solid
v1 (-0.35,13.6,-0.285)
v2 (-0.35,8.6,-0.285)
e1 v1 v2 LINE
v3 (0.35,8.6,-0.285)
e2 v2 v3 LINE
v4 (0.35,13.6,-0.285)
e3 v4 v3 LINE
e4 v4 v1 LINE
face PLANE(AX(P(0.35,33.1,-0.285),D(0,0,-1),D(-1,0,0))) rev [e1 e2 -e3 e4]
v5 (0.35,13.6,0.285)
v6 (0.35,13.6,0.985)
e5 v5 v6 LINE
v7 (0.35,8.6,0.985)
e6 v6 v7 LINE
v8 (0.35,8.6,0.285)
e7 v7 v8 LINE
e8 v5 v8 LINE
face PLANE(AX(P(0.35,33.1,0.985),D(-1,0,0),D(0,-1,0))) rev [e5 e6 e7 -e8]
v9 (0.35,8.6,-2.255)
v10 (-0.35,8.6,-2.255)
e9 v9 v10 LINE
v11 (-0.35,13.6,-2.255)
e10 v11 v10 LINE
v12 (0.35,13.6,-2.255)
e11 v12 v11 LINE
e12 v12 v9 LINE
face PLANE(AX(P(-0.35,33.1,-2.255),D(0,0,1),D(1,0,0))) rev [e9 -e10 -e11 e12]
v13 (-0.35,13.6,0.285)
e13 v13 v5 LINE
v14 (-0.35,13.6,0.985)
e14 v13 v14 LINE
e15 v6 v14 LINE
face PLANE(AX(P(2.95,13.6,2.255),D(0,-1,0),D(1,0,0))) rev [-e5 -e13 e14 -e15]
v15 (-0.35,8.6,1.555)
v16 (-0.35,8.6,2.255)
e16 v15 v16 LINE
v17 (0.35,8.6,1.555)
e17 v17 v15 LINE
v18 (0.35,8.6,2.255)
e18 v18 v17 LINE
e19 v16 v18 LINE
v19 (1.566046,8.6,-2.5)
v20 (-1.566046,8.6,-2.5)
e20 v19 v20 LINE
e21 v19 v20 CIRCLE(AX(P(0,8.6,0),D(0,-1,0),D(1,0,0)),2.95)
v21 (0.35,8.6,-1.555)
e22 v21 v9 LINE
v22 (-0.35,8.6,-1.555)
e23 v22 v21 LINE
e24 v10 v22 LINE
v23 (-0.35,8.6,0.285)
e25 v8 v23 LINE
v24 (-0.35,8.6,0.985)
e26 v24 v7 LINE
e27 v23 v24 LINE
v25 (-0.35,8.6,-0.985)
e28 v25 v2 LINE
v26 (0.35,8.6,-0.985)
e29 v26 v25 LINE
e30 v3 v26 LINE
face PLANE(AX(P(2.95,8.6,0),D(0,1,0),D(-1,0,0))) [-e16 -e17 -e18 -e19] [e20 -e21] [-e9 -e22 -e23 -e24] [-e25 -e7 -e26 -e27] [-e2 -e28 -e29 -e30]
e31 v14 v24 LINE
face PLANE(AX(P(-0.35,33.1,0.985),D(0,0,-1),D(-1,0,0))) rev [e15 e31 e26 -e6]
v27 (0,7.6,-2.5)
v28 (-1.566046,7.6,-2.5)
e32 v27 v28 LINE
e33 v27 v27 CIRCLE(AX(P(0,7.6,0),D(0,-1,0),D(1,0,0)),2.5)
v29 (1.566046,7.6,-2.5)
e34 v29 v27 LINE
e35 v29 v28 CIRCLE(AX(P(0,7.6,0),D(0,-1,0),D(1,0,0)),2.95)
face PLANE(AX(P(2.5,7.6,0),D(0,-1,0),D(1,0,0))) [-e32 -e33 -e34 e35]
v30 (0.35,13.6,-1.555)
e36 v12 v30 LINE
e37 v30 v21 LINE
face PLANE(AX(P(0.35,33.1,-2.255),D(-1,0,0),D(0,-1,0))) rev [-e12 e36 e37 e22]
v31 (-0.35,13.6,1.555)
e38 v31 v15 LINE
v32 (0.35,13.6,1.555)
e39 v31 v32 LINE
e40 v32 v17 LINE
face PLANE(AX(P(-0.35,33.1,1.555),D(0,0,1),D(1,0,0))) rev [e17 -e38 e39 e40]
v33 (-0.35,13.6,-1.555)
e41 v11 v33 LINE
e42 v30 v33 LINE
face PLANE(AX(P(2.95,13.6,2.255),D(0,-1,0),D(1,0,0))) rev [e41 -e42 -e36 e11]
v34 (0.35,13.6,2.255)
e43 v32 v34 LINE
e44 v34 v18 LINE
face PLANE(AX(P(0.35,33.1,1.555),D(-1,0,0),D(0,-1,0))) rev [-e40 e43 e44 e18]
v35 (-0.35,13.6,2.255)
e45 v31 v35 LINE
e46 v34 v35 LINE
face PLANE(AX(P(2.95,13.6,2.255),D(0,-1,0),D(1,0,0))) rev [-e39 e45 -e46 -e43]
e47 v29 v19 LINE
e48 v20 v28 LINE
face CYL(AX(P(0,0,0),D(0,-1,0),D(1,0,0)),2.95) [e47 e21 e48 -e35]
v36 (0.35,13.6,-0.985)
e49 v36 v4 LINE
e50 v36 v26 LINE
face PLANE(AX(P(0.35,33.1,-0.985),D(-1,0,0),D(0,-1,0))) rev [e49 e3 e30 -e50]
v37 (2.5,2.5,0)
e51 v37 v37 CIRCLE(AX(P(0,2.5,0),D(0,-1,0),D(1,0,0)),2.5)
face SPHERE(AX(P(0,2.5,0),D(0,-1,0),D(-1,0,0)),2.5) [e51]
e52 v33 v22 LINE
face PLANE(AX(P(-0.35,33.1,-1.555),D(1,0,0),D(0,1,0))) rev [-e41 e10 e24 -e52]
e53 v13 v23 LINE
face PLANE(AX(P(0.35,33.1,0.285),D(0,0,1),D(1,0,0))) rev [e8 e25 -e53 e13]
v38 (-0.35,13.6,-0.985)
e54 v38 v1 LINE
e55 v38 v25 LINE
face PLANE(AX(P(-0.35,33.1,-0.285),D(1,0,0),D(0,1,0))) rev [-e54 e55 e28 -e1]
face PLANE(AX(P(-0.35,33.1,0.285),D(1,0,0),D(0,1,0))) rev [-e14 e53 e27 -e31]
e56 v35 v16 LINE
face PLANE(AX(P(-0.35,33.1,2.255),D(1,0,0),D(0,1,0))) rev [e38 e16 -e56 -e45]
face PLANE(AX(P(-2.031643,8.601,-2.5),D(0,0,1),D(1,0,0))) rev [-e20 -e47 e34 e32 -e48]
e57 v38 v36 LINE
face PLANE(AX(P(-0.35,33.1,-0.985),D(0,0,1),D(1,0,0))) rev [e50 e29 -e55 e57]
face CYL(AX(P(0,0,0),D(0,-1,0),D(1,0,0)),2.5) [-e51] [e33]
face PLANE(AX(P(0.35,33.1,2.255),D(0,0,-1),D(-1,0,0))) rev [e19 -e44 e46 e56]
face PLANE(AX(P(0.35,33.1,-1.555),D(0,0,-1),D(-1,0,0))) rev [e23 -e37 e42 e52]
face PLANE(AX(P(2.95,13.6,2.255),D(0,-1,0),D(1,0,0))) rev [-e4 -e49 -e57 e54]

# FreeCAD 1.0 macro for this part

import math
import FreeCAD as App
import Part
import Sketcher

V = App.Vector


def add_polygon(sketch, points):
    """Adds a closed chain of lines whose ends are joined by coincident constraints."""
    first, n = sketch.GeometryCount, len(points)
    for a, b in zip(points, points[1:] + points[:1]):
        sketch.addGeometry(Part.LineSegment(App.Vector(*a, 0), App.Vector(*b, 0)), False)
    for i in range(n):
        sketch.addConstraint(Sketcher.Constraint("Coincident", first + i, 2, first + (i + 1) % n, 1))

doc = App.newDocument("Part")
body = doc.addObject("PartDesign::Body", "Body")

sketch1 = doc.addObject("Sketcher::SketchObject", "Sketch")
body.addObject(sketch1)
sketch1.AttachmentSupport = (doc.XY_Plane, [""])
sketch1.MapMode = "FlatFace"
sketch1.addGeometry(Part.LineSegment(V(2.5, 2.5, 0), V(2.5, 7.6, 0)), False)
sketch1.addGeometry(Part.LineSegment(V(2.5, 7.6, 0), V(2.95, 7.6, 0)), False)
sketch1.addGeometry(Part.LineSegment(V(2.95, 7.6, 0), V(2.95, 8.6, 0)), False)
sketch1.addGeometry(Part.LineSegment(V(2.95, 8.6, 0), V(0, 8.6, 0)), False)
sketch1.addGeometry(Part.LineSegment(V(0, 8.6, 0), V(0, 0, 0)), False)
sketch1.addGeometry(Part.ArcOfCircle(Part.Circle(V(0, 2.5, 0), V(0, 0, 1), 2.5), math.radians(-90), math.radians(0)), False)
sketch1.addConstraint(Sketcher.Constraint("Coincident", 0, 2, 1, 1))
sketch1.addConstraint(Sketcher.Constraint("Coincident", 1, 2, 2, 1))
sketch1.addConstraint(Sketcher.Constraint("Coincident", 2, 2, 3, 1))
sketch1.addConstraint(Sketcher.Constraint("Coincident", 3, 2, 4, 1))
sketch1.addConstraint(Sketcher.Constraint("Coincident", 4, 2, 5, 1))
sketch1.addConstraint(Sketcher.Constraint("Tangent", 5, 2, 0, 1))
sketch1.addConstraint(Sketcher.Constraint("Vertical", 0))
sketch1.addConstraint(Sketcher.Constraint("Horizontal", 1))
sketch1.addConstraint(Sketcher.Constraint("Vertical", 2))
sketch1.addConstraint(Sketcher.Constraint("Horizontal", 3))
sketch1.addConstraint(Sketcher.Constraint("Vertical", 4))
sketch1.addConstraint(Sketcher.Constraint("Coincident", 4, 2, -1, 1))
sketch1.addConstraint(Sketcher.Constraint("PointOnObject", 5, 3, -2))
sketch1.addConstraint(Sketcher.Constraint("Radius", 5, 2.5))
sketch1.addConstraint(Sketcher.Constraint("DistanceY", 2, 1, 2, 2, 1.0))
sketch1.addConstraint(Sketcher.Constraint("DistanceY", 0, 1, 0, 2, 5.1))
sketch1.addConstraint(Sketcher.Constraint("DistanceX", 1, 1, 1, 2, 0.45))
revolution = doc.addObject("PartDesign::Revolution", "Revolution")
body.addObject(revolution)
revolution.Profile = sketch1
revolution.ReferenceAxis = (sketch1, ["V_Axis"])
revolution.Angle = 360

sketch2 = doc.addObject("Sketcher::SketchObject", "Sketch001")
body.addObject(sketch2)
sketch2.AttachmentSupport = (doc.XZ_Plane, [""])
sketch2.MapMode = "FlatFace"
sketch2.AttachmentOffset = App.Placement(V(0, 0, -7.6), App.Rotation())
add_polygon(sketch2, [(2.1, -2.5), (-2, -2.5), (0.3, -5.4)])
sketch2.addConstraint(Sketcher.Constraint("Horizontal", 0))
sketch2.addConstraint(Sketcher.Constraint("DistanceY", 0, 2, -1, 1, 2.5))
sketch2.addConstraint(Sketcher.Constraint("DistanceX", 0, 2, 0, 1, 4.150819))
sketch2.addConstraint(Sketcher.Constraint("DistanceX", 1, 2, 2, 2, 1.814898))
sketch2.addConstraint(Sketcher.Constraint("Distance", 2, 3.434491))
sketch2.addConstraint(Sketcher.Constraint("DistanceX", 0, 2, -1, 1, 2.031643))
pocket1 = doc.addObject("PartDesign::Pocket", "Pocket")
body.addObject(pocket1)
pocket1.Profile = sketch2
pocket1.Length = 1

sketch3 = doc.addObject("Sketcher::SketchObject", "Sketch002")
body.addObject(sketch3)
sketch3.AttachmentSupport = (doc.XZ_Plane, [""])
sketch3.MapMode = "FlatFace"
sketch3.AttachmentOffset = App.Placement(V(0, 0, -8.6), App.Rotation())
add_polygon(sketch3, [(-0.3, -2.3), (-0.3, -1.6), (0.3, -1.6), (0.3, -2.3)])
add_polygon(sketch3, [(-0.3, 0.3), (-0.3, 1), (0.3, 1), (0.3, 0.3)])
add_polygon(sketch3, [(-0.3, 1.6), (-0.3, 2.3), (0.3, 2.3), (0.3, 1.6)])
add_polygon(sketch3, [(-0.3, -1), (-0.3, -0.3), (0.3, -0.3), (0.3, -1)])
sketch3.addConstraint(Sketcher.Constraint("Vertical", 0))
sketch3.addConstraint(Sketcher.Constraint("Horizontal", 1))
sketch3.addConstraint(Sketcher.Constraint("Vertical", 2))
sketch3.addConstraint(Sketcher.Constraint("Horizontal", 3))
sketch3.addConstraint(Sketcher.Constraint("Vertical", 4))
sketch3.addConstraint(Sketcher.Constraint("Horizontal", 5))
sketch3.addConstraint(Sketcher.Constraint("Vertical", 6))
sketch3.addConstraint(Sketcher.Constraint("Horizontal", 7))
sketch3.addConstraint(Sketcher.Constraint("Vertical", 8))
sketch3.addConstraint(Sketcher.Constraint("Horizontal", 9))
sketch3.addConstraint(Sketcher.Constraint("Vertical", 10))
sketch3.addConstraint(Sketcher.Constraint("Horizontal", 11))
sketch3.addConstraint(Sketcher.Constraint("Vertical", 12))
sketch3.addConstraint(Sketcher.Constraint("Horizontal", 13))
sketch3.addConstraint(Sketcher.Constraint("Vertical", 14))
sketch3.addConstraint(Sketcher.Constraint("Horizontal", 15))
sketch3.addConstraint(Sketcher.Constraint("Symmetric", 2, 2, 8, 2, -1, 1))
sketch3.addConstraint(Sketcher.Constraint("Symmetric", 0, 2, 10, 2, -1, 1))
sketch3.addConstraint(Sketcher.Constraint("Symmetric", 6, 2, 12, 2, -1, 1))
sketch3.addConstraint(Sketcher.Constraint("Symmetric", 4, 2, 14, 2, -1, 1))
sketch3.addConstraint(Sketcher.Constraint("Vertical", 3, 2, 4, 2))
sketch3.addConstraint(Sketcher.Constraint("Vertical", 2, 2, 5, 2))
sketch3.addConstraint(Sketcher.Constraint("Vertical", 7, 2, 8, 2))
sketch3.addConstraint(Sketcher.Constraint("Equal", 15, 0))
sketch3.addConstraint(Sketcher.Constraint("Equal", 2, 4))
sketch3.addConstraint(Sketcher.Constraint("DistanceX", 1, 1, 1, 2, 0.7))
sketch3.addConstraint(Sketcher.Constraint("DistanceY", 0, 2, 4, 2, 2.54))
sketch3.addConstraint(Sketcher.Constraint("DistanceY", 4, 2, 8, 2, 1.27))
pad1 = doc.addObject("PartDesign::Pad", "Pad")
body.addObject(pad1)
pad1.Profile = sketch3
pad1.Length = 24.5
pad1.Reversed = True

sketch4 = doc.addObject("Sketcher::SketchObject", "Sketch003")
body.addObject(sketch4)
sketch4.AttachmentSupport = (doc.YZ_Plane, [""])
sketch4.MapMode = "FlatFace"
sketch4.AttachmentOffset = App.Placement(V(0, 0, 2.95), App.Rotation())
add_polygon(sketch4, [(30.6, -2.9), (30.6, -1.3), (33.9, -1.3), (33.9, 0), (31.8, 0), (31.8, 1.3), (30.6, 1.3), (30.6, 2.9), (34.7, 2.9), (34.7, -2.9)])
sketch4.addConstraint(Sketcher.Constraint("Vertical", 0))
sketch4.addConstraint(Sketcher.Constraint("Horizontal", 1))
sketch4.addConstraint(Sketcher.Constraint("Vertical", 2))
sketch4.addConstraint(Sketcher.Constraint("Horizontal", 3))
sketch4.addConstraint(Sketcher.Constraint("Vertical", 4))
sketch4.addConstraint(Sketcher.Constraint("Horizontal", 5))
sketch4.addConstraint(Sketcher.Constraint("Vertical", 6))
sketch4.addConstraint(Sketcher.Constraint("Horizontal", 7))
sketch4.addConstraint(Sketcher.Constraint("Vertical", 8))
sketch4.addConstraint(Sketcher.Constraint("Horizontal", 9))
sketch4.addConstraint(Sketcher.Constraint("PointOnObject", 2, 2, -1))
sketch4.addConstraint(Sketcher.Constraint("Vertical", 0, 2, 5, 2))
sketch4.addConstraint(Sketcher.Constraint("DistanceX", 5, 2, 5, 1, 1.23))
sketch4.addConstraint(Sketcher.Constraint("DistanceX", -1, 1, 0, 2, 30.6))
sketch4.addConstraint(Sketcher.Constraint("DistanceY", 6, 1, 6, 2, 1.5531))
sketch4.addConstraint(Sketcher.Constraint("DistanceY", 0, 1, 0, 2, 1.619438))
sketch4.addConstraint(Sketcher.Constraint("DistanceY", 8, 2, 8, 1, 5.782608))
sketch4.addConstraint(Sketcher.Constraint("DistanceX", 1, 1, 1, 2, 3.321908))
sketch4.addConstraint(Sketcher.Constraint("DistanceX", 7, 1, 7, 2, 4.076887))
sketch4.addConstraint(Sketcher.Constraint("DistanceY", 2, 1, 2, 2, 1.265658))
pocket2 = doc.addObject("PartDesign::Pocket", "Pocket001")
body.addObject(pocket2)
pocket2.Profile = sketch4
pocket2.Length = 5.9

sketch5 = doc.addObject("Sketcher::SketchObject", "Sketch004")
body.addObject(sketch5)
sketch5.AttachmentSupport = (doc.YZ_Plane, [""])
sketch5.MapMode = "FlatFace"
sketch5.AttachmentOffset = App.Placement(V(0, 0, -0.35), App.Rotation())
add_polygon(sketch5, [(33.1, -2.3), (13.6, -2.3), (13.6, 2.3), (33.1, 2.3)])
sketch5.addConstraint(Sketcher.Constraint("Horizontal", 0))
sketch5.addConstraint(Sketcher.Constraint("Vertical", 1))
sketch5.addConstraint(Sketcher.Constraint("Horizontal", 2))
sketch5.addConstraint(Sketcher.Constraint("Vertical", 3))
sketch5.addConstraint(Sketcher.Constraint("DistanceX", 0, 2, 0, 1, 19.5))
sketch5.addConstraint(Sketcher.Constraint("DistanceY", 1, 1, 1, 2, 4.51))
sketch5.addConstraint(Sketcher.Constraint("DistanceX", -1, 1, 0, 2, 13.6))
sketch5.addConstraint(Sketcher.Constraint("DistanceY", 0, 2, -1, 1, 2.255))
pocket3 = doc.addObject("PartDesign::Pocket", "Pocket002")
body.addObject(pocket3)
pocket3.Profile = sketch5
pocket3.Type = "ThroughAll"
pocket3.Reversed = True

doc.recompute()
